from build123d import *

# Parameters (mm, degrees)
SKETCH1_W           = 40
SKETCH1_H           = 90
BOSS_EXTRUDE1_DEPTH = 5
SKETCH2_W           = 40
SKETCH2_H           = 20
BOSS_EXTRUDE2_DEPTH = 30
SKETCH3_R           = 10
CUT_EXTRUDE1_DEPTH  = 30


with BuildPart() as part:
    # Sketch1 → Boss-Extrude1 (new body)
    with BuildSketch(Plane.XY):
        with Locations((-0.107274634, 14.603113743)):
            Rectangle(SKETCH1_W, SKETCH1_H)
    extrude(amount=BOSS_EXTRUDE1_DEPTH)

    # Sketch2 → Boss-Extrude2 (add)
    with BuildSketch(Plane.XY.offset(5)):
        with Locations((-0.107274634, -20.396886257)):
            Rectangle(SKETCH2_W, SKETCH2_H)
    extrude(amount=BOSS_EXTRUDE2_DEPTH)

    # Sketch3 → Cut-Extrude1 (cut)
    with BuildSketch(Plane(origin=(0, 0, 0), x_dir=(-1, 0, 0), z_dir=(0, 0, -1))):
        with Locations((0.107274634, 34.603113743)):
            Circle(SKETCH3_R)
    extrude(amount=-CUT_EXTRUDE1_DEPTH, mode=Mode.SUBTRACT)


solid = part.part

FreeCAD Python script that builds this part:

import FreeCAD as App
import Part
import Sketcher

V = App.Vector


def add_polygon(sketch, points):
    """Adds a closed chain of lines whose ends are joined by coincident constraints."""
    first, n = sketch.GeometryCount, len(points)
    for a, b in zip(points, points[1:] + points[:1]):
        sketch.addGeometry(Part.LineSegment(App.Vector(*a, 0), App.Vector(*b, 0)), False)
    for i in range(n):
        sketch.addConstraint(Sketcher.Constraint("Coincident", first + i, 2, first + (i + 1) % n, 1))

doc = App.newDocument("Part")
body = doc.addObject("PartDesign::Body", "Body")

# Sketch on XY plane
sketch1 = body.newObject("Sketcher::SketchObject", "Sketch")
sketch1.AttachmentSupport = (doc.getObject("XY_Plane"), [""])
sketch1.MapMode = "FlatFace"
add_polygon(sketch1, [(-20, 60), (-20, -30), (20, -30), (20, 60)])  # lines 0-3
sketch1.addConstraint(Sketcher.Constraint("Vertical", 0))
sketch1.addConstraint(Sketcher.Constraint("Horizontal", 1))
sketch1.addConstraint(Sketcher.Constraint("Vertical", 2))
sketch1.addConstraint(Sketcher.Constraint("Horizontal", 3))
sketch1.addConstraint(Sketcher.Constraint("DistanceX", 1, 1, 1, 2, 40.0))
sketch1.addConstraint(Sketcher.Constraint("DistanceY", 0, 2, 0, 1, 90.0))
sketch1.addConstraint(Sketcher.Constraint("DistanceX", 0, 2, -1, 1, 20.107275))
sketch1.addConstraint(Sketcher.Constraint("DistanceY", 0, 2, -1, 1, 30.396886))
pad1 = body.newObject("PartDesign::Pad", "Pad")
pad1.Profile = sketch1
pad1.Length = 5

# Sketch on XY plane
sketch2 = body.newObject("Sketcher::SketchObject", "Sketch001")
sketch2.AttachmentSupport = (doc.getObject("XY_Plane"), [""])
sketch2.MapMode = "FlatFace"
sketch2.AttachmentOffset = App.Placement(V(0, 0, 5), App.Rotation())
add_polygon(sketch2, [(-20, -10), (-20, -30), (20, -30), (20, -10)])  # lines 0-3
sketch2.addConstraint(Sketcher.Constraint("Vertical", 0))
sketch2.addConstraint(Sketcher.Constraint("Horizontal", 1))
sketch2.addConstraint(Sketcher.Constraint("Vertical", 2))
sketch2.addConstraint(Sketcher.Constraint("Horizontal", 3))
sketch2.addConstraint(Sketcher.Constraint("DistanceX", 1, 1, 1, 2, 40.0))
sketch2.addConstraint(Sketcher.Constraint("DistanceY", 0, 2, 0, 1, 20.0))
sketch2.addConstraint(Sketcher.Constraint("DistanceX", 0, 2, -1, 1, 20.107275))
sketch2.addConstraint(Sketcher.Constraint("DistanceY", 0, 2, -1, 1, 30.396886))
pad2 = body.newObject("PartDesign::Pad", "Pad001")
pad2.Profile = sketch2
pad2.Length = 30

# Sketch on XY plane
sketch3 = body.newObject("Sketcher::SketchObject", "Sketch002")
sketch3.AttachmentSupport = (doc.getObject("XY_Plane"), [""])
sketch3.MapMode = "FlatFace"
sketch3.addGeometry(Part.Circle(V(0, 35, 0), V(0, 0, 1), 10), False)
sketch3.addConstraint(Sketcher.Constraint("Diameter", 0, 20.0))
sketch3.addConstraint(Sketcher.Constraint("DistanceX", 0, 3, -1, 1, 0.107275))
sketch3.addConstraint(Sketcher.Constraint("DistanceY", -1, 1, 0, 3, 34.603114))
pocket1 = body.newObject("PartDesign::Pocket", "Pocket")
pocket1.Profile = sketch3
pocket1.Length = 30
pocket1.Reversed = True

doc.recompute()
